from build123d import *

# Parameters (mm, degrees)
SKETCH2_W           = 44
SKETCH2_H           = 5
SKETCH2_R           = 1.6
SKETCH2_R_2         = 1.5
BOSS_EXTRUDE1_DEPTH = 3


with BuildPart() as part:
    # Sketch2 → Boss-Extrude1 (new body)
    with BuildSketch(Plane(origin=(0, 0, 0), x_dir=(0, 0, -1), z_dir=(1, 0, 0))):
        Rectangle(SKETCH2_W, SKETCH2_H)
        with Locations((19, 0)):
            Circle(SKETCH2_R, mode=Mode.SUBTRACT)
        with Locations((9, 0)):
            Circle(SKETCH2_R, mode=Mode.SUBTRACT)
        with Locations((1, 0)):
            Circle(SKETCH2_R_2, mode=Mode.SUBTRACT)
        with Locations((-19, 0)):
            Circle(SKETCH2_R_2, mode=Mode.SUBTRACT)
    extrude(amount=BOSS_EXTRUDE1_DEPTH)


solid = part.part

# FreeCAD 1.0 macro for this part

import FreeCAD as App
import Part
import Sketcher
Q = App.Units.Quantity


def add_polygon(sketch, points):
    """Adds a closed chain of lines whose ends are joined by coincident constraints."""
    first, n = sketch.GeometryCount, len(points)
    for a, b in zip(points, points[1:] + points[:1]):
        sketch.addGeometry(Part.LineSegment(App.Vector(*a, 0), App.Vector(*b, 0)), False)
    for i in range(n):
        sketch.addConstraint(Sketcher.Constraint("Coincident", first + i, 2, first + (i + 1) % n, 1))

doc = App.newDocument("Part")
params = doc.addObject("Spreadsheet::Sheet", "Params")
for row, (alias, value) in enumerate([
    ("sketch1_diameter", "3 mm"),
    ("sketch1_diameter2", "3.2 mm"),
    ("sketch1_width", "5 mm"),
    ("sketch1_height", "44 mm"),
    ("pad1_length", "3 mm"),
], start=1):
    params.set(f"A{row}", alias)
    params.set(f"B{row}", "=" + value)
    params.setAlias(f"B{row}", alias)

body = doc.addObject("PartDesign::Body", "Body")

sketch1 = body.newObject("Sketcher::SketchObject", "Sketch")
sketch1.AttachmentSupport = (doc.getObject("YZ_Plane"), [""])
sketch1.MapMode = "FlatFace"
add_polygon(sketch1, [(2.5, 22), (-2.5, 22), (-2.5, -22), (2.5, -22)])
sketch1.addGeometry(Part.Circle(App.Vector(0, 19, 0), App.Vector(0, 0, 1), 1.5), False)
sketch1.addGeometry(Part.Circle(App.Vector(0, -1, 0), App.Vector(0, 0, 1), 1.5), False)
sketch1.addGeometry(Part.Circle(App.Vector(0, -9, 0), App.Vector(0, 0, 1), 1.6), False)
sketch1.addGeometry(Part.Circle(App.Vector(0, -19, 0), App.Vector(0, 0, 1), 1.6), False)
sketch1.addConstraint([
    Sketcher.Constraint("Horizontal", 0),
    Sketcher.Constraint("Vertical", 1),
    Sketcher.Constraint("Horizontal", 2),
    Sketcher.Constraint("Vertical", 3),
    Sketcher.Constraint("Equal", 4, 5),
    Sketcher.Constraint("Equal", 6, 7),
    Sketcher.Constraint("Symmetric", 4, 3, 7, 3, -1, 1),
    Sketcher.Constraint("Symmetric", 0, 2, 2, 2, -1, 1),
    Sketcher.Constraint("PointOnObject", 4, 3, -2),
    Sketcher.Constraint("PointOnObject", 5, 3, -2),
    Sketcher.Constraint("PointOnObject", 6, 3, -2),
    Sketcher.Constraint("Diameter", 4, Q("3 mm")),
    Sketcher.Constraint("Diameter", 6, Q("3.2 mm")),
    Sketcher.Constraint("DistanceX", 0, 2, 0, 1, Q("5 mm")),
    Sketcher.Constraint("DistanceY", 1, 2, 1, 1, Q("44 mm")),
    Sketcher.Constraint("DistanceY", -1, 1, 4, 3, Q("19 mm")),
    Sketcher.Constraint("DistanceY", 5, 3, -1, 1, Q("1 mm")),
    Sketcher.Constraint("DistanceY", 6, 3, -1, 1, Q("9 mm")),
])
sketch1.setExpression("Constraints[15]", "Params.sketch1_diameter")
sketch1.setExpression("Constraints[16]", "Params.sketch1_diameter2")
sketch1.setExpression("Constraints[17]", "Params.sketch1_width")
sketch1.setExpression("Constraints[18]", "Params.sketch1_height")
pad1 = body.newObject("PartDesign::Pad", "Pad")
pad1.Profile = sketch1
pad1.setExpression("Length", "Params.pad1_length")

doc.recompute()
